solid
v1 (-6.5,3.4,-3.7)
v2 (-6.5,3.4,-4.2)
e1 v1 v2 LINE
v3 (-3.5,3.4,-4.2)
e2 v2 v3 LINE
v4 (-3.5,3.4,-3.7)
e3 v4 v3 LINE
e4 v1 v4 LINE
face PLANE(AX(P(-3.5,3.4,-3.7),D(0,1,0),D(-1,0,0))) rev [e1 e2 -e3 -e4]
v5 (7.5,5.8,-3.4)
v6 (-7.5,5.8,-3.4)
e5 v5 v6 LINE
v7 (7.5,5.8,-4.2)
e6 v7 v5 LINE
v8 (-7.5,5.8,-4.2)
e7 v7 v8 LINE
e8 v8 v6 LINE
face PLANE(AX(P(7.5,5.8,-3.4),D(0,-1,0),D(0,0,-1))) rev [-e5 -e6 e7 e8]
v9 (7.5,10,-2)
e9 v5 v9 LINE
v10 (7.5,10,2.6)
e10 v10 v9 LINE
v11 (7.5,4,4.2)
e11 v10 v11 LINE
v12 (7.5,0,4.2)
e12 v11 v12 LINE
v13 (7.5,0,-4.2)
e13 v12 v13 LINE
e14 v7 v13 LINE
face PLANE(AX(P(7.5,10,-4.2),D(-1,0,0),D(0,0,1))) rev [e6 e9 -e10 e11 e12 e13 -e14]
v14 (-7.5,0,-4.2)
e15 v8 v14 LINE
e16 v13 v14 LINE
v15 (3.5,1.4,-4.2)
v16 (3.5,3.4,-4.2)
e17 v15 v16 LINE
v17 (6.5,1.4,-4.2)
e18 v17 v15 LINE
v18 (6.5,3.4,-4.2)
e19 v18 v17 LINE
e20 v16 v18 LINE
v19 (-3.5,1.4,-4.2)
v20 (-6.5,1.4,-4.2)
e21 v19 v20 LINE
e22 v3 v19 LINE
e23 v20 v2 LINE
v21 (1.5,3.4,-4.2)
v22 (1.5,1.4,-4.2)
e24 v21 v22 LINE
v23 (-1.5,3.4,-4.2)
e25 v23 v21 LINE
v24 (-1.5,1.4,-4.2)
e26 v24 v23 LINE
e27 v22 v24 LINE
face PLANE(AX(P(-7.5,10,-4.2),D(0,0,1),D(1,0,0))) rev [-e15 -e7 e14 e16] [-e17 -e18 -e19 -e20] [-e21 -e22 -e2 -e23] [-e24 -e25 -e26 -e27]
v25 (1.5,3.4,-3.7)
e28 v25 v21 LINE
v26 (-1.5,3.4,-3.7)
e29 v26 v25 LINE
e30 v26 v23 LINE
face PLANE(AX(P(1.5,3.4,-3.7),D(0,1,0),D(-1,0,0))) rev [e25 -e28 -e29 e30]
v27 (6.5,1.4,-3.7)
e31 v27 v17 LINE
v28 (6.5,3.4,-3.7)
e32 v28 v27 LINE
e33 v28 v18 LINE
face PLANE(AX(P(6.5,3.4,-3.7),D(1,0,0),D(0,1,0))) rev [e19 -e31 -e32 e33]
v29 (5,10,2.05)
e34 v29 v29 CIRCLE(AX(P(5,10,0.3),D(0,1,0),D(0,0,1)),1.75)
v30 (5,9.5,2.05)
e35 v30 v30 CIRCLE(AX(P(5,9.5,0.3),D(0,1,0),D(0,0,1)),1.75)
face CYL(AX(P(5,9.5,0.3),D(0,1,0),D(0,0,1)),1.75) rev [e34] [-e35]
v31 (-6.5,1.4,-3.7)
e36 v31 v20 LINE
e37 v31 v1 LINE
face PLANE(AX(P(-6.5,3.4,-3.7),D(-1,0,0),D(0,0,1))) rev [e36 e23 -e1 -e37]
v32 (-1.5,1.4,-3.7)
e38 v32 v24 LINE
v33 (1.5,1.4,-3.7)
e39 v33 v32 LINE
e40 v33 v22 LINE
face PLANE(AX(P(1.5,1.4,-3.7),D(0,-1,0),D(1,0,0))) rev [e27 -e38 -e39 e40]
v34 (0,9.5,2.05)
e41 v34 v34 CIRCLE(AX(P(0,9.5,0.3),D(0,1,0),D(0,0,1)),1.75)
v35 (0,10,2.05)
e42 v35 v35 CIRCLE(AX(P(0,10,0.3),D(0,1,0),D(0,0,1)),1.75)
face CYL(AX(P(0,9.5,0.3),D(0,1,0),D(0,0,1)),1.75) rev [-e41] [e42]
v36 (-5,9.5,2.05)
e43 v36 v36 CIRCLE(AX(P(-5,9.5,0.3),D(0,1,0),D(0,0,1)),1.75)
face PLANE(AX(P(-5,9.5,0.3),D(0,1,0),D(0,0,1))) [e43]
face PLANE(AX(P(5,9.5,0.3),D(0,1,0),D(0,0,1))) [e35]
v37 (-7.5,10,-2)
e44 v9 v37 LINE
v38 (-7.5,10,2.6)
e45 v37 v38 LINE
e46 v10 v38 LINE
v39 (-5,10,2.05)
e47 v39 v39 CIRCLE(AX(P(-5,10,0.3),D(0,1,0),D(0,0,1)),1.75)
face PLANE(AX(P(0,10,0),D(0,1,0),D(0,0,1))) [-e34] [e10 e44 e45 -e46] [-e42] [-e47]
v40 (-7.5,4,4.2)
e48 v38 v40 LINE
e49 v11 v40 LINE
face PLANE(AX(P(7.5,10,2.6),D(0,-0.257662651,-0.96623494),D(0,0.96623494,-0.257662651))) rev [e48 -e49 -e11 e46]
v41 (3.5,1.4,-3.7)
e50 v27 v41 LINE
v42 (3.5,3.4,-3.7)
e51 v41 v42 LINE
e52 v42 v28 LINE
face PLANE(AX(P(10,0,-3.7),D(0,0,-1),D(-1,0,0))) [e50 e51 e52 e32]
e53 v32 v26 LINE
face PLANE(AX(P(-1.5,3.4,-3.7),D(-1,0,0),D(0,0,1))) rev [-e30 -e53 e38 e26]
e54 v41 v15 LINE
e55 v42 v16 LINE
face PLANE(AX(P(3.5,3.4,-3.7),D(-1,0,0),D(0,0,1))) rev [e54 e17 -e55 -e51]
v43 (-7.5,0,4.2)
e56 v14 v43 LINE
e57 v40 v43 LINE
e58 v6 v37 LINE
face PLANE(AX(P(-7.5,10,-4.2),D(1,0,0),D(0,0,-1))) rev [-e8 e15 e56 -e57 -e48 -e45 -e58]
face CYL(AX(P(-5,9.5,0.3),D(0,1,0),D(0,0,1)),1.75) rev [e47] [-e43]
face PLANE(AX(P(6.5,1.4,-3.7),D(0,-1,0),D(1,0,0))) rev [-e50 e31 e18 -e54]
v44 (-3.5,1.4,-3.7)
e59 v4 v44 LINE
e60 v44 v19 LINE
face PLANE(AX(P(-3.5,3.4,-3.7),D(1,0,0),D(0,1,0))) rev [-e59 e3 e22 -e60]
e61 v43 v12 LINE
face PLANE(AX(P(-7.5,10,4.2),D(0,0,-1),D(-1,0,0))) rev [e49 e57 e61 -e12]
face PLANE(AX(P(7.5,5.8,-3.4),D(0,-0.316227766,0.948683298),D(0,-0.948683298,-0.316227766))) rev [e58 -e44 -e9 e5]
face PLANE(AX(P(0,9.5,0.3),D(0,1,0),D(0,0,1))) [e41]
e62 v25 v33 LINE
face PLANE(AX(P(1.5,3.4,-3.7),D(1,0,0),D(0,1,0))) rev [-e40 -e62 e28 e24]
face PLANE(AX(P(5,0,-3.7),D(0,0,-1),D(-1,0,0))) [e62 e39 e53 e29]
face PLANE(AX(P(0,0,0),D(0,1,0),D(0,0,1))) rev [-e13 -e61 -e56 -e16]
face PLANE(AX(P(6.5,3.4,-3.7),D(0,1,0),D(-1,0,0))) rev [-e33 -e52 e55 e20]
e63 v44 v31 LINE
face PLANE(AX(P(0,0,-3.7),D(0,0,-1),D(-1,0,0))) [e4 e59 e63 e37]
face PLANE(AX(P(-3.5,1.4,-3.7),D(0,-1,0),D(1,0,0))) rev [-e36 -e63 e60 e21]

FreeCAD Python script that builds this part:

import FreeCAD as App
import Part
import Sketcher
from FreeCAD import Vector

doc = App.newDocument("Part")
body = doc.addObject("PartDesign::Body", "Body")

sketch1 = body.newObject("Sketcher::SketchObject", "Sketch")
sketch1.AttachmentSupport = (doc.getObject("XZ_Plane"), [""])
sketch1.MapMode = "FlatFace"
sketch1.addGeometry([
    Part.LineSegment(Vector(-7.5, -4.2, 0), Vector(-7.5, 4.2, 0)),
    Part.LineSegment(Vector(-7.5, 4.2, 0), Vector(7.5, 4.2, 0)),
    Part.LineSegment(Vector(7.5, 4.2, 0), Vector(7.5, -4.2, 0)),
    Part.LineSegment(Vector(7.5, -4.2, 0), Vector(-7.5, -4.2, 0)),
], False)
sketch1.addConstraint([
    Sketcher.Constraint("Coincident", 0, 2, 1, 1),
    Sketcher.Constraint("Coincident", 1, 2, 2, 1),
    Sketcher.Constraint("Coincident", 2, 2, 3, 1),
    Sketcher.Constraint("Coincident", 3, 2, 0, 1),
    Sketcher.Constraint("Vertical", 0),
    Sketcher.Constraint("Horizontal", 1),
    Sketcher.Constraint("Vertical", 2),
    Sketcher.Constraint("Horizontal", 3),
    Sketcher.Constraint("Symmetric", 0, 2, 2, 2, -1, 1),
    Sketcher.Constraint("DistanceX", 1, 1, 1, 2, 15.0),
    Sketcher.Constraint("DistanceY", 0, 1, 0, 2, 8.4),
])
pad1 = body.newObject("PartDesign::Pad", "Pad")
pad1.Profile = sketch1
pad1.Length = 10
pad1.Reversed = True

sketch2 = body.newObject("Sketcher::SketchObject", "Sketch001")
sketch2.AttachmentSupport = (doc.getObject("YZ_Plane"), [""])
sketch2.MapMode = "FlatFace"
sketch2.AttachmentOffset = App.Placement(Vector(0, 0, -7.5), App.Rotation())
sketch2.addGeometry([
    Part.LineSegment(Vector(5.8, -3.4, 0), Vector(10, -2, 0)),
    Part.LineSegment(Vector(10, -2, 0), Vector(10, -4.2, 0)),
    Part.LineSegment(Vector(10, -4.2, 0), Vector(5.8, -4.2, 0)),
    Part.LineSegment(Vector(5.8, -4.2, 0), Vector(5.8, -3.4, 0)),
    Part.LineSegment(Vector(10, 4.2, 0), Vector(10, 2.6, 0)),
    Part.LineSegment(Vector(10, 2.6, 0), Vector(4, 4.2, 0)),
    Part.LineSegment(Vector(4, 4.2, 0), Vector(10, 4.2, 0)),
], False)
sketch2.addConstraint([
    Sketcher.Constraint("Coincident", 0, 2, 1, 1),
    Sketcher.Constraint("Coincident", 1, 2, 2, 1),
    Sketcher.Constraint("Coincident", 2, 2, 3, 1),
    Sketcher.Constraint("Coincident", 3, 2, 0, 1),
    Sketcher.Constraint("Coincident", 4, 2, 5, 1),
    Sketcher.Constraint("Coincident", 5, 2, 6, 1),
    Sketcher.Constraint("Coincident", 6, 2, 4, 1),
    Sketcher.Constraint("Vertical", 1),
    Sketcher.Constraint("Horizontal", 2),
    Sketcher.Constraint("Vertical", 3),
    Sketcher.Constraint("Vertical", 4),
    Sketcher.Constraint("Horizontal", 6),
    Sketcher.Constraint("Symmetric", 1, 2, 6, 2, -1),
    Sketcher.Constraint("DistanceX", 6, 1, 6, 2, 6.0),
    Sketcher.Constraint("DistanceX", 2, 2, 2, 1, 4.2),
    Sketcher.Constraint("DistanceY", 1, 2, 1, 1, 2.2),
    Sketcher.Constraint("DistanceY", 3, 1, 3, 2, 0.8),
    Sketcher.Constraint("DistanceY", 4, 2, 4, 1, 1.6),
    Sketcher.Constraint("DistanceX", -1, 1, 0, 2, 10.0),
    Sketcher.Constraint("DistanceY", 0, 2, -1, 1, 2.0),
])
pocket1 = body.newObject("PartDesign::Pocket", "Pocket")
pocket1.Profile = sketch2
pocket1.Type = "ThroughAll"
pocket1.Reversed = True

sketch3 = body.newObject("Sketcher::SketchObject", "Sketch002")
sketch3.AttachmentSupport = (doc.getObject("XZ_Plane"), [""])
sketch3.MapMode = "FlatFace"
sketch3.AttachmentOffset = App.Placement(Vector(0, 0, -10), App.Rotation())
sketch3.addGeometry(Part.Circle(Vector(-5, 0.3, 0), Vector(0, 0, 1), 1.75), False)
sketch3.addConstraint([
    Sketcher.Constraint("Diameter", 0, 3.5),
    Sketcher.Constraint("DistanceX", 0, 3, -1, 1, 5.0),
    Sketcher.Constraint("DistanceY", -1, 1, 0, 3, 0.3),
])
pocket2 = body.newObject("PartDesign::Pocket", "Pocket001")
pocket2.Profile = sketch3
pocket2.Length = 0.5
pocket2.Reversed = True

sketch4 = body.newObject("Sketcher::SketchObject", "Sketch003")
sketch4.AttachmentSupport = (doc.getObject("XY_Plane"), [""])
sketch4.MapMode = "FlatFace"
sketch4.AttachmentOffset = App.Placement(Vector(0, 0, -4.2), App.Rotation())
sketch4.addGeometry([
    Part.LineSegment(Vector(-3.5, 3.4, 0), Vector(-3.5, 1.4, 0)),
    Part.LineSegment(Vector(-3.5, 1.4, 0), Vector(-6.5, 1.4, 0)),
    Part.LineSegment(Vector(-6.5, 1.4, 0), Vector(-6.5, 3.4, 0)),
    Part.LineSegment(Vector(-6.5, 3.4, 0), Vector(-3.5, 3.4, 0)),
], False)
sketch4.addConstraint([
    Sketcher.Constraint("Coincident", 0, 2, 1, 1),
    Sketcher.Constraint("Coincident", 1, 2, 2, 1),
    Sketcher.Constraint("Coincident", 2, 2, 3, 1),
    Sketcher.Constraint("Coincident", 3, 2, 0, 1),
    Sketcher.Constraint("Vertical", 0),
    Sketcher.Constraint("Horizontal", 1),
    Sketcher.Constraint("Vertical", 2),
    Sketcher.Constraint("Horizontal", 3),
    Sketcher.Constraint("DistanceX", 1, 2, 1, 1, 3.0),
    Sketcher.Constraint("DistanceY", 0, 2, 0, 1, 2.0),
    Sketcher.Constraint("DistanceX", 0, 2, -1, 1, 3.5),
    Sketcher.Constraint("DistanceY", -1, 1, 0, 2, 1.4),
])
pocket3 = body.newObject("PartDesign::Pocket", "Pocket002")
pocket3.Profile = sketch4
pocket3.Length = 0.5
pocket3.Reversed = True
doc.recompute()

linearpattern = body.newObject("PartDesign::LinearPattern", "LinearPattern")
linearpattern.Originals = [pocket2, pocket3]
linearpattern.Direction = (doc.getObject("X_Axis"), [""])
linearpattern.Mode = "offset"
linearpattern.Offset = 5
linearpattern.Occurrences = 3
body.Tip = linearpattern

doc.recompute()
